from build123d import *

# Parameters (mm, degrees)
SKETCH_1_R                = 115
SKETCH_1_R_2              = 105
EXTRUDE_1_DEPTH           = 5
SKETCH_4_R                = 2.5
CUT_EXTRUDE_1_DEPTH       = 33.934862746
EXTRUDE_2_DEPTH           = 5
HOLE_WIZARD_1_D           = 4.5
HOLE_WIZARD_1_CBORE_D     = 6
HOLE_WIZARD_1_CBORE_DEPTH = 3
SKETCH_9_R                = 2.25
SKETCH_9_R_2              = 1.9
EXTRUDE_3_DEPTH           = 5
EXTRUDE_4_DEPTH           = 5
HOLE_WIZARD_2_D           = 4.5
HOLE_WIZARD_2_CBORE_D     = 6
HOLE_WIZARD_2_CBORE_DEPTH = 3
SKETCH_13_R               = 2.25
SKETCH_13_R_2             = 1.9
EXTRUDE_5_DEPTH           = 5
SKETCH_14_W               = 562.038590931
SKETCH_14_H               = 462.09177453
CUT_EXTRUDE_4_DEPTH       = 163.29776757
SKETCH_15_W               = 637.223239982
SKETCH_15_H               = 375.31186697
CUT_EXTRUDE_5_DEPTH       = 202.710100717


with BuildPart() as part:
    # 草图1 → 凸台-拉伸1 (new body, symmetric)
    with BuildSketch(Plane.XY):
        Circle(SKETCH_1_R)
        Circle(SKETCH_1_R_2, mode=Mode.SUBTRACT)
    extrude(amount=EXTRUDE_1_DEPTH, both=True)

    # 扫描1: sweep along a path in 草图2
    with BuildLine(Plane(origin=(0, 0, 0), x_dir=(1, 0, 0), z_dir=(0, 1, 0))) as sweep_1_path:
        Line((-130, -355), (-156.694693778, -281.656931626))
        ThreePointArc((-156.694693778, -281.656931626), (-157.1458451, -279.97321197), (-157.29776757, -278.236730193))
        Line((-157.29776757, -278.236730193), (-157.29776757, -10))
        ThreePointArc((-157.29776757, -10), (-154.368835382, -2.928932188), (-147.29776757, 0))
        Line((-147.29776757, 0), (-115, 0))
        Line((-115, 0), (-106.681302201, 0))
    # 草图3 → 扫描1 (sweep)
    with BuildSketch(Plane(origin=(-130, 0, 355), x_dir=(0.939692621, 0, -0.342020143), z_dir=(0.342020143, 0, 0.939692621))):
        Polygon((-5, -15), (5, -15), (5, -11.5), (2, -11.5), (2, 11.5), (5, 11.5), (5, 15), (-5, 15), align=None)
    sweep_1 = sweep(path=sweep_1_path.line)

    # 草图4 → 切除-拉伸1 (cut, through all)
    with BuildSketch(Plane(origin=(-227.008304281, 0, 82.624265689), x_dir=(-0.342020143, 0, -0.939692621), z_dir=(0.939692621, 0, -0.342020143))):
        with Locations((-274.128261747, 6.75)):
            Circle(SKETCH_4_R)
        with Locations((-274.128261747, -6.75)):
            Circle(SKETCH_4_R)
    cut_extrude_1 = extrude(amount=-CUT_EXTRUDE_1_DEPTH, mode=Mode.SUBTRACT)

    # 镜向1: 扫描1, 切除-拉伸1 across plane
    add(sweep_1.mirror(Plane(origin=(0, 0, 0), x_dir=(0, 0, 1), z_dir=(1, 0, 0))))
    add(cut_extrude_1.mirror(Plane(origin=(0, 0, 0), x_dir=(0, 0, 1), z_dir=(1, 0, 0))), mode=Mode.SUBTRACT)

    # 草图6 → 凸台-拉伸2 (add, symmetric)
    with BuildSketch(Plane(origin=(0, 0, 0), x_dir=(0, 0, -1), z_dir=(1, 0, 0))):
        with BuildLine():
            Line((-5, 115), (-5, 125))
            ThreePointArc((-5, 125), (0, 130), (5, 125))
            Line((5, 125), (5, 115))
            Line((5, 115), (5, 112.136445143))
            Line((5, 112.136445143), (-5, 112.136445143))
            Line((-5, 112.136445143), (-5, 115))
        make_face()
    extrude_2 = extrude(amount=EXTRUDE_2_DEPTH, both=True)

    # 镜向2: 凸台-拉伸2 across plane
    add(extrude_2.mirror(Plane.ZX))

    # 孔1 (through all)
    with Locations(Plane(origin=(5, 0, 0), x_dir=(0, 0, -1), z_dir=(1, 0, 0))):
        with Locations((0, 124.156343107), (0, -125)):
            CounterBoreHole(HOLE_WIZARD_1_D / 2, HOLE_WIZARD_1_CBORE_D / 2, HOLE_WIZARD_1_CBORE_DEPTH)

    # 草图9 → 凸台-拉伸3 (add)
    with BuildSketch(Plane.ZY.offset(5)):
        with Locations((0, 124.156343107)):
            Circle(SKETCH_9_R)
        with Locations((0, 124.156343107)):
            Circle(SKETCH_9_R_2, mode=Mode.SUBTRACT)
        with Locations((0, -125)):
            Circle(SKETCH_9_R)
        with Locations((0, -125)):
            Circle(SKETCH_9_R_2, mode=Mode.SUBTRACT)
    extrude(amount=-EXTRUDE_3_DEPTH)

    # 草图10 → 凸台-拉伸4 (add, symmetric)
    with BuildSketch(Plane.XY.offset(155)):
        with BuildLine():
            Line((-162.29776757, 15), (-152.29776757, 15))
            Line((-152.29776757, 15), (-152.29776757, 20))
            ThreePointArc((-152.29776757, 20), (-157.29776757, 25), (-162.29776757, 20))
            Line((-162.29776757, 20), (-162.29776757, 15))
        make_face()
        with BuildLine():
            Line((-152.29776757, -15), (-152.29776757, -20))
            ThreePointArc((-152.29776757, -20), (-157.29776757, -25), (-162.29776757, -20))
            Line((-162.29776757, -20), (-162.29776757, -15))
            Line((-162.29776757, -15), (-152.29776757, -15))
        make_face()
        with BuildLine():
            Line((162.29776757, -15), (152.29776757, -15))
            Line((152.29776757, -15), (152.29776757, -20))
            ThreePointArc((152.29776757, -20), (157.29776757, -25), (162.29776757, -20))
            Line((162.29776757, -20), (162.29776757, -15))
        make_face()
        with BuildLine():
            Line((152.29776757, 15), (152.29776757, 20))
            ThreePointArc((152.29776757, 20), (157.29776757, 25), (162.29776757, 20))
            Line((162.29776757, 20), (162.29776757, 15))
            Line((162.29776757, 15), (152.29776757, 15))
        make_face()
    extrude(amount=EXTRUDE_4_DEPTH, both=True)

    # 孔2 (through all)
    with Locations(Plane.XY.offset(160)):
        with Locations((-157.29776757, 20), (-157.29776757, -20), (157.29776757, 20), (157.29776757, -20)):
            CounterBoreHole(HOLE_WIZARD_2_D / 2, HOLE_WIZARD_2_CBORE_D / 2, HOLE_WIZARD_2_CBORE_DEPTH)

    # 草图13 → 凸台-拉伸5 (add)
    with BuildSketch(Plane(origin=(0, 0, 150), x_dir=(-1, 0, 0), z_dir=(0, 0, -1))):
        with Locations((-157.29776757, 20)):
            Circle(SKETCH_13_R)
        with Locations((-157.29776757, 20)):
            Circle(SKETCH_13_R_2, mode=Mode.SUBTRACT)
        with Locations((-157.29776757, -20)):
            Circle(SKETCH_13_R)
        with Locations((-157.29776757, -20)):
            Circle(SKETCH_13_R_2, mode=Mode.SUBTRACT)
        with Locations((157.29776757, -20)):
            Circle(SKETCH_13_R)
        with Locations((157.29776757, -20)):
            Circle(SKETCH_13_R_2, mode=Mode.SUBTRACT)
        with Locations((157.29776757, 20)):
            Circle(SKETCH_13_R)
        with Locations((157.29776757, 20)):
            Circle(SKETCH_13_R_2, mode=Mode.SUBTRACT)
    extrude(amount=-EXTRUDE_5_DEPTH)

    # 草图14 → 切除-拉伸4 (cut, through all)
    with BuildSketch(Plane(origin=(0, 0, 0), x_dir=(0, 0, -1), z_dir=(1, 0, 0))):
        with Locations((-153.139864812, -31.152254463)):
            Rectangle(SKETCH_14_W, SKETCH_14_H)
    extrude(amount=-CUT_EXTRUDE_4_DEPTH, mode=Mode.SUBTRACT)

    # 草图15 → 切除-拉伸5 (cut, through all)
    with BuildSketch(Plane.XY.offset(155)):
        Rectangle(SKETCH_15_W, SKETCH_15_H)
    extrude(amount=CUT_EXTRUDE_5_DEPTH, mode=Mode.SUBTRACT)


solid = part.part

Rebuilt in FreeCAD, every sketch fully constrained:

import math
import FreeCAD as App
import Part
import Sketcher
from FreeCAD import Vector
Q = App.Units.Quantity


def add_polygon(sketch, points):
    """Adds a closed chain of lines whose ends are joined by coincident constraints."""
    first, n = sketch.GeometryCount, len(points)
    for a, b in zip(points, points[1:] + points[:1]):
        sketch.addGeometry(Part.LineSegment(App.Vector(*a, 0), App.Vector(*b, 0)), False)
    for i in range(n):
        sketch.addConstraint(Sketcher.Constraint("Coincident", first + i, 2, first + (i + 1) % n, 1))

doc = App.newDocument("Part")
params = doc.addObject("Spreadsheet::Sheet", "Params")
for row, (alias, value) in enumerate([
    ("sketch1_diameter", "230 mm"),
    ("sketch1_diameter2", "210 mm"),
    ("pad1_length", "10 mm"),
    ("sketch2_width", "10 mm"),
    ("sketch2_width2", "3 mm"),
    ("sketch2_height", "23 mm"),
    ("sketch2_height2", "30 mm"),
    ("sketch3_radius", "10 mm"),
    ("sketch4_diameter", "5 mm"),
    ("sketch5_radius", "5 mm"),
    ("pad2_length", "10 mm"),
    ("sketch6_diameter", "4.5 mm"),
    ("hole_diameter", "4.5 mm"),
    ("hole_cbore_diameter", "6 mm"),
    ("hole_cbore_depth", "3 mm"),
    ("sketch7_diameter", "4.5 mm"),
    ("sketch7_diameter2", "3.8 mm"),
    ("pad3_length", "5 mm"),
    ("sketch8_radius", "5 mm"),
    ("sketch8_height", "5 mm"),
    ("pad4_length", "10 mm"),
    ("sketch9_diameter", "4.5 mm"),
    ("hole2_diameter", "4.5 mm"),
    ("hole2_cbore_diameter", "6 mm"),
    ("hole2_cbore_depth", "3 mm"),
    ("sketch10_diameter", "4.5 mm"),
    ("sketch10_diameter2", "3.8 mm"),
    ("pad5_length", "5 mm"),
], start=1):
    params.set(f"A{row}", alias)
    params.set(f"B{row}", "=" + value)
    params.setAlias(f"B{row}", alias)

body = doc.addObject("PartDesign::Body", "Body")

# Sketch on XY plane
sketch1 = body.newObject("Sketcher::SketchObject", "Sketch")
sketch1.AttachmentSupport = (doc.getObject("XY_Plane"), [""])
sketch1.MapMode = "FlatFace"
sketch1.addGeometry([
    Part.Circle(Vector(0, 0, 0), Vector(0, 0, 1), 115),
    Part.Circle(Vector(0, 0, 0), Vector(0, 0, 1), 105),
], False)
sketch1.addConstraint([
    Sketcher.Constraint("Coincident", 0, 3, -1, 1),
    Sketcher.Constraint("Coincident", 1, 3, -1, 1),
    Sketcher.Constraint("Diameter", 0, Q("230 mm")),
    Sketcher.Constraint("Diameter", 1, Q("210 mm")),
])
sketch1.setExpression("Constraints[2]", "Params.sketch1_diameter")
sketch1.setExpression("Constraints[3]", "Params.sketch1_diameter2")
pad1 = body.newObject("PartDesign::Pad", "Pad")
pad1.Profile = sketch1
pad1.setExpression("Length", "Params.pad1_length")
pad1.Midplane = True

# Sketch on an angled plane
sketch2 = body.newObject("Sketcher::SketchObject", "Sketch001")
sketch2.Placement = App.Placement(Vector(-130, 0, 355), App.Rotation(Vector(0.939692621, 0, -0.342020143), Vector(0, 1, 0), Vector(0.342020143, 0, 0.939692621), "ZXY"))
add_polygon(sketch2, [(-5, -15), (5, -15), (5, -11.5), (2, -11.5), (2, 11.5), (5, 11.5), (5, 15), (-5, 15)])  # lines 0-7
sketch2.addConstraint([
    Sketcher.Constraint("Horizontal", 0),
    Sketcher.Constraint("Vertical", 1),
    Sketcher.Constraint("Horizontal", 2),
    Sketcher.Constraint("Vertical", 3),
    Sketcher.Constraint("Horizontal", 4),
    Sketcher.Constraint("Vertical", 5),
    Sketcher.Constraint("Horizontal", 6),
    Sketcher.Constraint("Vertical", 7),
    Sketcher.Constraint("Symmetric", 0, 2, 6, 2, -1, 1),
    Sketcher.Constraint("Symmetric", 1, 2, 4, 2, -1),
    Sketcher.Constraint("DistanceX", 0, 1, 0, 2, Q("10 mm")),
    Sketcher.Constraint("DistanceX", 2, 2, 2, 1, Q("3 mm")),
    Sketcher.Constraint("DistanceY", 3, 1, 3, 2, Q("23 mm")),
    Sketcher.Constraint("DistanceY", 7, 2, 7, 1, Q("30 mm")),
])
sketch2.setExpression("Constraints[18]", "Params.sketch2_width")
sketch2.setExpression("Constraints[19]", "Params.sketch2_width2")
sketch2.setExpression("Constraints[20]", "Params.sketch2_height")
sketch2.setExpression("Constraints[21]", "Params.sketch2_height2")

# Sketch on XZ plane
sketch3 = body.newObject("Sketcher::SketchObject", "Sketch002")
sketch3.AttachmentSupport = (doc.getObject("XZ_Plane"), [""])
sketch3.MapMode = "FlatFace"
sketch3.addGeometry([
    Part.LineSegment(Vector(-130, 355, 0), Vector(-156.7, 281.7, 0)),  # 0
    Part.ArcOfCircle(Part.Circle(Vector(-147.3, 278.2, 0), Vector(0, 0, 1), 10), math.radians(160), math.radians(180)),  # 1
    Part.LineSegment(Vector(-157.3, 278.2, 0), Vector(-157.3, 10, 0)),  # 2
    Part.ArcOfCircle(Part.Circle(Vector(-147.3, 10, 0), Vector(0, 0, 1), 10), math.radians(180), math.radians(270)),  # 3
    Part.LineSegment(Vector(-147.3, 0, 0), Vector(-106.7, 0, 0)),  # 4
], False)
sketch3.addConstraint([
    Sketcher.Constraint("Tangent", 0, 2, 1, 1),
    Sketcher.Constraint("Tangent", 1, 2, 2, 1),
    Sketcher.Constraint("Tangent", 2, 2, 3, 1),
    Sketcher.Constraint("Tangent", 3, 2, 4, 1),
    Sketcher.Constraint("Vertical", 2),
    Sketcher.Constraint("Horizontal", 4),
    Sketcher.Constraint("Equal", 1, 3),
    Sketcher.Constraint("PointOnObject", 3, 2, -1),
    Sketcher.Constraint("Radius", 1, Q("10 mm")),
    Sketcher.Constraint("Angle", 0, Q("-110 deg")),
    Sketcher.Constraint("DistanceX", 0, 1, -1, 1, Q("130 mm")),
    Sketcher.Constraint("DistanceY", -1, 1, 0, 1, Q("355 mm")),
    Sketcher.Constraint("DistanceY", 2, 2, 2, 1, Q("268.23673 mm")),
    Sketcher.Constraint("DistanceX", 4, 1, 4, 2, Q("40.616465 mm")),
])
sketch3.setExpression("Constraints[8]", "Params.sketch3_radius")
doc.recompute()

additivepipe = body.newObject("PartDesign::AdditivePipe", "AdditivePipe")
additivepipe.Profile = sketch2
additivepipe.Spine = (sketch3, ["Edge1", "Edge2", "Edge3", "Edge4", "Edge5"])

# Sketch on an angled plane
sketch4 = body.newObject("Sketcher::SketchObject", "Sketch003")
sketch4.Placement = App.Placement(Vector(-227.008304, 0, 82.624266), App.Rotation(Vector(-0.342020143, 0, -0.939692621), Vector(0, 1, 0), Vector(0.939692621, 0, -0.342020143), "ZXY"))
sketch4.addGeometry([
    Part.Circle(Vector(-274.1, 6.8, 0), Vector(0, 0, 1), 2.5),
    Part.Circle(Vector(-274.1, -6.8, 0), Vector(0, 0, 1), 2.5),
], False)
sketch4.addConstraint([
    Sketcher.Constraint("Equal", 0, 1),
    Sketcher.Constraint("Symmetric", 0, 3, 1, 3, -1),
    Sketcher.Constraint("Diameter", 0, Q("5 mm")),
    Sketcher.Constraint("DistanceY", 1, 3, 0, 3, Q("13.5 mm")),
    Sketcher.Constraint("DistanceX", 0, 3, -1, 1, Q("274.128262 mm")),
])
sketch4.setExpression("Constraints[2]", "Params.sketch4_diameter")
pocket1 = body.newObject("PartDesign::Pocket", "Pocket")
pocket1.Profile = sketch4
pocket1.Type = "ThroughAll"
doc.recompute()

mirrored = body.newObject("PartDesign::Mirrored", "Mirrored")
mirrored.Originals = [additivepipe, pocket1]
mirrored.MirrorPlane = (doc.getObject("YZ_Plane"), [""])
body.Tip = mirrored

# Sketch on YZ plane
sketch5 = body.newObject("Sketcher::SketchObject", "Sketch004")
sketch5.AttachmentSupport = (doc.getObject("YZ_Plane"), [""])
sketch5.MapMode = "FlatFace"
sketch5.addGeometry([
    Part.ArcOfCircle(Part.Circle(Vector(125, 0, 0), Vector(0, 0, 1), 5), math.radians(-90), math.radians(90)),
    Part.LineSegment(Vector(125, 5, 0), Vector(112, 5, 0)),
    Part.LineSegment(Vector(112, 5, 0), Vector(112, -5, 0)),
    Part.LineSegment(Vector(112, -5, 0), Vector(125, -5, 0)),
], False)
sketch5.addConstraint([
    Sketcher.Constraint("Tangent", 0, 2, 1, 1),
    Sketcher.Constraint("Coincident", 1, 2, 2, 1),
    Sketcher.Constraint("Coincident", 2, 2, 3, 1),
    Sketcher.Constraint("Tangent", 3, 2, 0, 1),
    Sketcher.Constraint("Horizontal", 1),
    Sketcher.Constraint("Vertical", 2),
    Sketcher.Constraint("Horizontal", 3),
    Sketcher.Constraint("PointOnObject", 0, 3, -1),
    Sketcher.Constraint("Radius", 0, Q("5 mm")),
    Sketcher.Constraint("DistanceX", -1, 1, 0, 3, Q("125 mm")),
    Sketcher.Constraint("DistanceX", 1, 2, 1, 1, Q("12.863555 mm")),
])
sketch5.setExpression("Constraints[8]", "Params.sketch5_radius")
pad2 = body.newObject("PartDesign::Pad", "Pad001")
pad2.Profile = sketch5
pad2.setExpression("Length", "Params.pad2_length")
pad2.Midplane = True
doc.recompute()

mirrored2 = body.newObject("PartDesign::Mirrored", "Mirrored001")
mirrored2.Originals = [pad2]
mirrored2.MirrorPlane = (doc.getObject("XZ_Plane"), [""])
body.Tip = mirrored2

# Sketch on YZ plane
sketch6 = body.newObject("Sketcher::SketchObject", "Sketch005")
sketch6.AttachmentSupport = (doc.getObject("YZ_Plane"), [""])
sketch6.MapMode = "FlatFace"
sketch6.AttachmentOffset = App.Placement(Vector(0, 0, 5), App.Rotation())
sketch6.addGeometry([
    Part.Circle(Vector(124.2, 0, 0), Vector(0, 0, 1), 2.2),
    Part.Circle(Vector(-125, 0, 0), Vector(0, 0, 1), 2.2),
], False)
sketch6.addConstraint([
    Sketcher.Constraint("Equal", 0, 1),
    Sketcher.Constraint("PointOnObject", 0, 3, -1),
    Sketcher.Constraint("PointOnObject", 1, 3, -1),
    Sketcher.Constraint("Diameter", 0, Q("4.5 mm")),
    Sketcher.Constraint("DistanceX", 1, 3, -1, 1, Q("125 mm")),
    Sketcher.Constraint("DistanceX", -1, 1, 0, 3, Q("124.156343 mm")),
])
sketch6.setExpression("Constraints[3]", "Params.sketch6_diameter")
doc.recompute()
hole = body.newObject("PartDesign::Hole", "Hole")
hole.Profile = sketch6
hole.ThreadType = "None"
hole.setExpression("Diameter", "Params.hole_diameter")
hole.DepthType = "ThroughAll"
hole.HoleCutType = "Counterbore"
hole.setExpression("HoleCutDiameter", "Params.hole_cbore_diameter")
hole.setExpression("HoleCutDepth", "Params.hole_cbore_depth")

# Sketch on YZ plane
sketch7 = body.newObject("Sketcher::SketchObject", "Sketch006")
sketch7.AttachmentSupport = (doc.getObject("YZ_Plane"), [""])
sketch7.MapMode = "FlatFace"
sketch7.AttachmentOffset = App.Placement(Vector(0, 0, -5), App.Rotation())
sketch7.addGeometry([
    Part.Circle(Vector(124.2, 0, 0), Vector(0, 0, 1), 2.2),
    Part.Circle(Vector(124.2, 0, 0), Vector(0, 0, 1), 1.9),
    Part.Circle(Vector(-125, 0, 0), Vector(0, 0, 1), 2.2),
    Part.Circle(Vector(-125, 0, 0), Vector(0, 0, 1), 1.9),
], False)
sketch7.addConstraint([
    Sketcher.Constraint("Coincident", 1, 3, 0, 3),
    Sketcher.Constraint("Coincident", 3, 3, 2, 3),
    Sketcher.Constraint("Equal", 0, 2),
    Sketcher.Constraint("Equal", 1, 3),
    Sketcher.Constraint("PointOnObject", 0, 3, -1),
    Sketcher.Constraint("PointOnObject", 2, 3, -1),
    Sketcher.Constraint("Diameter", 0, Q("4.5 mm")),
    Sketcher.Constraint("Diameter", 1, Q("3.8 mm")),
    Sketcher.Constraint("DistanceX", 2, 3, -1, 1, Q("125 mm")),
    Sketcher.Constraint("DistanceX", -1, 1, 0, 3, Q("124.156343 mm")),
])
sketch7.setExpression("Constraints[6]", "Params.sketch7_diameter")
sketch7.setExpression("Constraints[7]", "Params.sketch7_diameter2")
pad3 = body.newObject("PartDesign::Pad", "Pad002")
pad3.Profile = sketch7
pad3.setExpression("Length", "Params.pad3_length")

# Sketch on XY plane
sketch8 = body.newObject("Sketcher::SketchObject", "Sketch007")
sketch8.AttachmentSupport = (doc.getObject("XY_Plane"), [""])
sketch8.MapMode = "FlatFace"
sketch8.AttachmentOffset = App.Placement(Vector(0, 0, 155), App.Rotation())
sketch8.addGeometry([
    Part.LineSegment(Vector(-162, 15, 0), Vector(-152, 15, 0)),  # 0
    Part.LineSegment(Vector(-152, 15, 0), Vector(-152, 20, 0)),  # 1
    Part.ArcOfCircle(Part.Circle(Vector(-157, 20, 0), Vector(0, 0, 1), 5), math.radians(0), math.radians(180)),  # 2
    Part.LineSegment(Vector(-162, 20, 0), Vector(-162, 15, 0)),  # 3
    Part.LineSegment(Vector(-152, -20, 0), Vector(-152, -15, 0)),  # 4
    Part.LineSegment(Vector(-152, -15, 0), Vector(-162, -15, 0)),  # 5
    Part.LineSegment(Vector(-162, -15, 0), Vector(-162, -20, 0)),  # 6
    Part.ArcOfCircle(Part.Circle(Vector(-157, -20, 0), Vector(0, 0, 1), 5), math.radians(180), math.radians(360)),  # 7
    Part.LineSegment(Vector(162, -15, 0), Vector(152, -15, 0)),  # 8
    Part.LineSegment(Vector(152, -15, 0), Vector(152, -20, 0)),  # 9
    Part.ArcOfCircle(Part.Circle(Vector(157, -20, 0), Vector(0, 0, 1), 5), math.radians(180), math.radians(360)),  # 10
    Part.LineSegment(Vector(162, -20, 0), Vector(162, -15, 0)),  # 11
    Part.LineSegment(Vector(152, 20, 0), Vector(152, 15, 0)),  # 12
    Part.LineSegment(Vector(152, 15, 0), Vector(162, 15, 0)),  # 13
    Part.LineSegment(Vector(162, 15, 0), Vector(162, 20, 0)),  # 14
    Part.ArcOfCircle(Part.Circle(Vector(157, 20, 0), Vector(0, 0, 1), 5), math.radians(0), math.radians(180)),  # 15
], False)
sketch8.addConstraint([
    Sketcher.Constraint("Coincident", 0, 2, 1, 1),
    Sketcher.Constraint("Tangent", 1, 2, 2, 1),
    Sketcher.Constraint("Tangent", 2, 2, 3, 1),
    Sketcher.Constraint("Coincident", 3, 2, 0, 1),
    Sketcher.Constraint("Coincident", 4, 2, 5, 1),
    Sketcher.Constraint("Coincident", 5, 2, 6, 1),
    Sketcher.Constraint("Tangent", 6, 2, 7, 1),
    Sketcher.Constraint("Tangent", 7, 2, 4, 1),
    Sketcher.Constraint("Coincident", 8, 2, 9, 1),
    Sketcher.Constraint("Tangent", 9, 2, 10, 1),
    Sketcher.Constraint("Tangent", 10, 2, 11, 1),
    Sketcher.Constraint("Coincident", 11, 2, 8, 1),
    Sketcher.Constraint("Coincident", 12, 2, 13, 1),
    Sketcher.Constraint("Coincident", 13, 2, 14, 1),
    Sketcher.Constraint("Tangent", 14, 2, 15, 1),
    Sketcher.Constraint("Tangent", 15, 2, 12, 1),
    Sketcher.Constraint("Horizontal", 0),
    Sketcher.Constraint("Vertical", 1),
    Sketcher.Constraint("Vertical", 3),
    Sketcher.Constraint("Vertical", 4),
    Sketcher.Constraint("Horizontal", 5),
    Sketcher.Constraint("Vertical", 6),
    Sketcher.Constraint("Horizontal", 8),
    Sketcher.Constraint("Vertical", 9),
    Sketcher.Constraint("Vertical", 11),
    Sketcher.Constraint("Vertical", 12),
    Sketcher.Constraint("Horizontal", 13),
    Sketcher.Constraint("Vertical", 14),
    Sketcher.Constraint("Equal", 2, 7),
    Sketcher.Constraint("Equal", 7, 10),
    Sketcher.Constraint("Equal", 10, 15),
    Sketcher.Constraint("Symmetric", 2, 3, 10, 3, -1, 1),
    Sketcher.Constraint("Symmetric", 7, 3, 15, 3, -1, 1),
    Sketcher.Constraint("Symmetric", 7, 3, 10, 3, -2),
    Sketcher.Constraint("Horizontal", 5, 2, 8, 2),
    Sketcher.Constraint("Horizontal", 3, 2, 12, 2),
    Sketcher.Constraint("Equal", 3, 4),
    Sketcher.Constraint("Radius", 2, Q("5 mm")),
    Sketcher.Constraint("DistanceY", 1, 1, 1, 2, Q("5 mm")),
    Sketcher.Constraint("DistanceY", -1, 1, 2, 3, Q("20 mm")),
    Sketcher.Constraint("DistanceX", 2, 3, -1, 1, Q("157.297768 mm")),
])
sketch8.setExpression("Constraints[37]", "Params.sketch8_radius")
sketch8.setExpression("Constraints[38]", "Params.sketch8_height")
pad4 = body.newObject("PartDesign::Pad", "Pad003")
pad4.Profile = sketch8
pad4.setExpression("Length", "Params.pad4_length")
pad4.Midplane = True

# Sketch on XY plane
sketch9 = body.newObject("Sketcher::SketchObject", "Sketch008")
sketch9.AttachmentSupport = (doc.getObject("XY_Plane"), [""])
sketch9.MapMode = "FlatFace"
sketch9.AttachmentOffset = App.Placement(Vector(0, 0, 160), App.Rotation())
sketch9.addGeometry([
    Part.Circle(Vector(-157.3, 20, 0), Vector(0, 0, 1), 2.2),
    Part.Circle(Vector(-157.3, -20, 0), Vector(0, 0, 1), 2.2),
    Part.Circle(Vector(157.3, 20, 0), Vector(0, 0, 1), 2.2),
    Part.Circle(Vector(157.3, -20, 0), Vector(0, 0, 1), 2.2),
], False)
sketch9.addConstraint([
    Sketcher.Constraint("Equal", 0, 1),
    Sketcher.Constraint("Equal", 1, 2),
    Sketcher.Constraint("Equal", 2, 3),
    Sketcher.Constraint("Symmetric", 1, 3, 2, 3, -1, 1),
    Sketcher.Constraint("Symmetric", 0, 3, 3, 3, -1, 1),
    Sketcher.Constraint("Symmetric", 0, 3, 2, 3, -2),
    Sketcher.Constraint("Diameter", 0, Q("4.5 mm")),
    Sketcher.Constraint("DistanceY", -1, 1, 0, 3, Q("20 mm")),
    Sketcher.Constraint("DistanceX", 0, 3, -1, 1, Q("157.297768 mm")),
])
sketch9.setExpression("Constraints[6]", "Params.sketch9_diameter")
doc.recompute()
hole2 = body.newObject("PartDesign::Hole", "Hole001")
hole2.Profile = sketch9
hole2.ThreadType = "None"
hole2.setExpression("Diameter", "Params.hole2_diameter")
hole2.DepthType = "ThroughAll"
hole2.HoleCutType = "Counterbore"
hole2.setExpression("HoleCutDiameter", "Params.hole2_cbore_diameter")
hole2.setExpression("HoleCutDepth", "Params.hole2_cbore_depth")

# Sketch on XY plane
sketch10 = body.newObject("Sketcher::SketchObject", "Sketch009")
sketch10.AttachmentSupport = (doc.getObject("XY_Plane"), [""])
sketch10.MapMode = "FlatFace"
sketch10.AttachmentOffset = App.Placement(Vector(0, 0, 150), App.Rotation())
sketch10.addGeometry([
    Part.Circle(Vector(157.3, 20, 0), Vector(0, 0, 1), 2.2),  # 0
    Part.Circle(Vector(157.3, 20, 0), Vector(0, 0, 1), 1.9),  # 1
    Part.Circle(Vector(157.3, -20, 0), Vector(0, 0, 1), 2.2),  # 2
    Part.Circle(Vector(157.3, -20, 0), Vector(0, 0, 1), 1.9),  # 3
    Part.Circle(Vector(-157.3, -20, 0), Vector(0, 0, 1), 2.2),  # 4
    Part.Circle(Vector(-157.3, -20, 0), Vector(0, 0, 1), 1.9),  # 5
    Part.Circle(Vector(-157.3, 20, 0), Vector(0, 0, 1), 2.2),  # 6
    Part.Circle(Vector(-157.3, 20, 0), Vector(0, 0, 1), 1.9),  # 7
], False)
sketch10.addConstraint([
    Sketcher.Constraint("Coincident", 1, 3, 0, 3),
    Sketcher.Constraint("Coincident", 3, 3, 2, 3),
    Sketcher.Constraint("Coincident", 5, 3, 4, 3),
    Sketcher.Constraint("Coincident", 7, 3, 6, 3),
    Sketcher.Constraint("Equal", 0, 2),
    Sketcher.Constraint("Equal", 1, 3),
    Sketcher.Constraint("Equal", 2, 4),
    Sketcher.Constraint("Equal", 3, 5),
    Sketcher.Constraint("Equal", 4, 6),
    Sketcher.Constraint("Equal", 5, 7),
    Sketcher.Constraint("Symmetric", 0, 3, 4, 3, -1, 1),
    Sketcher.Constraint("Symmetric", 2, 3, 6, 3, -1, 1),
    Sketcher.Constraint("Symmetric", 2, 3, 4, 3, -2),
    Sketcher.Constraint("Diameter", 0, Q("4.5 mm")),
    Sketcher.Constraint("Diameter", 1, Q("3.8 mm")),
    Sketcher.Constraint("DistanceY", -1, 1, 0, 3, Q("20 mm")),
    Sketcher.Constraint("DistanceX", -1, 1, 0, 3, Q("157.297768 mm")),
])
sketch10.setExpression("Constraints[13]", "Params.sketch10_diameter")
sketch10.setExpression("Constraints[14]", "Params.sketch10_diameter2")
pad5 = body.newObject("PartDesign::Pad", "Pad004")
pad5.Profile = sketch10
pad5.setExpression("Length", "Params.pad5_length")

# Sketch on YZ plane
sketch11 = body.newObject("Sketcher::SketchObject", "Sketch010")
sketch11.AttachmentSupport = (doc.getObject("YZ_Plane"), [""])
sketch11.MapMode = "FlatFace"
add_polygon(sketch11, [(200, 434), (-262, 434), (-262, -128), (200, -128)])  # lines 0-3
sketch11.addConstraint([
    Sketcher.Constraint("Horizontal", 0),
    Sketcher.Constraint("Vertical", 1),
    Sketcher.Constraint("Horizontal", 2),
    Sketcher.Constraint("Vertical", 3),
    Sketcher.Constraint("DistanceY", 1, 2, 1, 1, Q("562.038591 mm")),
    Sketcher.Constraint("DistanceX", 0, 2, 0, 1, Q("462.091775 mm")),
    Sketcher.Constraint("DistanceX", 0, 2, -1, 1, Q("262.198142 mm")),
    Sketcher.Constraint("DistanceY", -1, 1, 0, 2, Q("434.15916 mm")),
])
pocket2 = body.newObject("PartDesign::Pocket", "Pocket001")
pocket2.Profile = sketch11
pocket2.Type = "ThroughAll"

# Sketch on XY plane
sketch12 = body.newObject("Sketcher::SketchObject", "Sketch011")
sketch12.AttachmentSupport = (doc.getObject("XY_Plane"), [""])
sketch12.MapMode = "FlatFace"
sketch12.AttachmentOffset = App.Placement(Vector(0, 0, 155), App.Rotation())
add_polygon(sketch12, [(-319, 188), (-319, -188), (319, -188), (319, 188)])  # lines 0-3
sketch12.addConstraint([
    Sketcher.Constraint("Vertical", 0),
    Sketcher.Constraint("Horizontal", 1),
    Sketcher.Constraint("Vertical", 2),
    Sketcher.Constraint("Horizontal", 3),
    Sketcher.Constraint("Symmetric", 0, 2, 2, 2, -1, 1),
    Sketcher.Constraint("DistanceX", 1, 1, 1, 2, Q("637.22324 mm")),
    Sketcher.Constraint("DistanceY", 0, 2, 0, 1, Q("375.311867 mm")),
])
pocket3 = body.newObject("PartDesign::Pocket", "Pocket002")
pocket3.Profile = sketch12
pocket3.Type = "ThroughAll"
pocket3.Reversed = True

doc.recompute()
